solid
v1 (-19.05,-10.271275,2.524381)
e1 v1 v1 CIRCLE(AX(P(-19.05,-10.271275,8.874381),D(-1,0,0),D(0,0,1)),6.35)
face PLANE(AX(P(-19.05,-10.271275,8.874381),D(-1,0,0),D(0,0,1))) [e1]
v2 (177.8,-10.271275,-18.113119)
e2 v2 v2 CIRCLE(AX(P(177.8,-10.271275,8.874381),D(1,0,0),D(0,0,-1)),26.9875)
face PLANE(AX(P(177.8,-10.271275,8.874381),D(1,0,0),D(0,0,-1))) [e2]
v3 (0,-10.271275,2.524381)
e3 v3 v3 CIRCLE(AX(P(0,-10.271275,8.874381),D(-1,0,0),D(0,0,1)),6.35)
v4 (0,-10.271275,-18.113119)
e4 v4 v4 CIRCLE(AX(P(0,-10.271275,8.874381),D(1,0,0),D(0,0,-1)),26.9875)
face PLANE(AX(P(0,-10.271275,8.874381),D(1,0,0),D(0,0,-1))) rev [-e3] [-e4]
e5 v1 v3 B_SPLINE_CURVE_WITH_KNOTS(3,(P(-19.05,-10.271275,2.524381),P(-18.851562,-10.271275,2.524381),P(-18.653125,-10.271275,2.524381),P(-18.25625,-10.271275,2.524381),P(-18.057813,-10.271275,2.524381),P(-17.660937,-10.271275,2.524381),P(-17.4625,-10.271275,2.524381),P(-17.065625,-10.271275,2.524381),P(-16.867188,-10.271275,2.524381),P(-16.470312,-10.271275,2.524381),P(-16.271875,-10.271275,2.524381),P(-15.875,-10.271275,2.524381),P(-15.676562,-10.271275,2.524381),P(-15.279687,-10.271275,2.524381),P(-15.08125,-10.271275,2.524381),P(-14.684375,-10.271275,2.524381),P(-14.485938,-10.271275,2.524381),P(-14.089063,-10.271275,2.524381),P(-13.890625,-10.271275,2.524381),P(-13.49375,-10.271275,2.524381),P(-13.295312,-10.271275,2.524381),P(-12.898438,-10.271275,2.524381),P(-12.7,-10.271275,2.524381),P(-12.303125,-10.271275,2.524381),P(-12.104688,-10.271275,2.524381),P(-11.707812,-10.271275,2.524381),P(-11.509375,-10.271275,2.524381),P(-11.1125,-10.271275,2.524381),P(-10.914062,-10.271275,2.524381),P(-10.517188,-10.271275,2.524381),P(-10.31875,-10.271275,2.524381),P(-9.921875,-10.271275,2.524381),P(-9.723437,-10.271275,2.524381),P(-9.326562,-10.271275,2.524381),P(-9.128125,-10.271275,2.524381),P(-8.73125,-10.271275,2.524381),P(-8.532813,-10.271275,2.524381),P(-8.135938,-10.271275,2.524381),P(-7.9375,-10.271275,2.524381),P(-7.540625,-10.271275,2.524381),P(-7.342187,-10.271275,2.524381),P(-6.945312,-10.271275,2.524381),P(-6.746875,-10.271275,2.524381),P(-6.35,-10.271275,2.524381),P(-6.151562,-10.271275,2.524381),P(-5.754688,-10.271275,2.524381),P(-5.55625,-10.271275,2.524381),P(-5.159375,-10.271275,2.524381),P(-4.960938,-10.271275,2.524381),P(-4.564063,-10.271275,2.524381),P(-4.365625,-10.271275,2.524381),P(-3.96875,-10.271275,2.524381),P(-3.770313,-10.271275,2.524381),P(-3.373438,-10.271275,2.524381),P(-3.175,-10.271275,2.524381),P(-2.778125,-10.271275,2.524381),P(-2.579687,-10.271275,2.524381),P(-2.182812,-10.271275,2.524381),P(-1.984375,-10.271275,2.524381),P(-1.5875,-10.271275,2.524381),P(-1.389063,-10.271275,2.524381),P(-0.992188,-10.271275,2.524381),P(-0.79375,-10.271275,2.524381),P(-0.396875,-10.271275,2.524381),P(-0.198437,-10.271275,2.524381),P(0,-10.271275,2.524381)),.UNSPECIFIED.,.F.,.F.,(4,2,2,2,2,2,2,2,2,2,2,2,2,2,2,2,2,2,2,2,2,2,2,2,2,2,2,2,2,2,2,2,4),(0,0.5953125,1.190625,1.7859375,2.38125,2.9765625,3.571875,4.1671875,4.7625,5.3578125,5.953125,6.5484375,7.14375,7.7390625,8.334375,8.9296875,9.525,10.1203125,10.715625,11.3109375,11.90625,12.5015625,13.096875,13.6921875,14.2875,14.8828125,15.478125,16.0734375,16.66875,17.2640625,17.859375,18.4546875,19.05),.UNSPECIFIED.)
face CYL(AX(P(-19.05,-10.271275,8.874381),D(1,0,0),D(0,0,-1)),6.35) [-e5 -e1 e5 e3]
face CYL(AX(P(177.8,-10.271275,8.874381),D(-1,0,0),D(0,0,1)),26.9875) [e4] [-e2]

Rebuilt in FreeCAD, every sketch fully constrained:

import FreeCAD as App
import Part
import Sketcher

V = App.Vector
Q = App.Units.Quantity

doc = App.newDocument("Part")
params = doc.addObject("Spreadsheet::Sheet", "Params")
for row, (alias, value) in enumerate([
    ("sketch1_diameter", "2.125 in"),
    ("pad1_length", "7 in"),
    ("sketch2_diameter", "0.5 in"),
    ("pad2_length", "0.75 in"),
], start=1):
    params.set(f"A{row}", alias)
    params.set(f"B{row}", "=" + value)
    params.setAlias(f"B{row}", alias)

body = doc.addObject("PartDesign::Body", "Body")

sketch1 = doc.addObject("Sketcher::SketchObject", "Sketch")
body.addObject(sketch1)
sketch1.AttachmentSupport = (doc.YZ_Plane, [""])
sketch1.MapMode = "FlatFace"
sketch1.addGeometry(Part.Circle(V(-10.271275, 8.874381, 0), V(0, 0, 1), 26.9875), False)
sketch1.addConstraint([
    Sketcher.Constraint("Diameter", 0, Q("2.125 in")),
    Sketcher.Constraint("DistanceY", -1, 1, 0, 3, Q("8.874381 mm")),
    Sketcher.Constraint("DistanceX", 0, 3, -1, 1, Q("10.271275 mm")),
])
sketch1.setExpression("Constraints[0]", "Params.sketch1_diameter")
pad1 = doc.addObject("PartDesign::Pad", "Pad")
body.addObject(pad1)
pad1.Profile = sketch1
pad1.setExpression("Length", "Params.pad1_length")

sketch2 = doc.addObject("Sketcher::SketchObject", "Sketch001")
body.addObject(sketch2)
sketch2.AttachmentSupport = (doc.YZ_Plane, [""])
sketch2.MapMode = "FlatFace"
sketch2.addGeometry(Part.Circle(V(-10.271275, 8.874381, 0), V(0, 0, 1), 6.35), False)
sketch2.addConstraint([
    Sketcher.Constraint("Diameter", 0, Q("0.5 in")),
    Sketcher.Constraint("DistanceY", -1, 1, 0, 3, Q("8.874381 mm")),
    Sketcher.Constraint("DistanceX", 0, 3, -1, 1, Q("10.271275 mm")),
])
sketch2.setExpression("Constraints[0]", "Params.sketch2_diameter")
pad2 = doc.addObject("PartDesign::Pad", "Pad001")
body.addObject(pad2)
pad2.Profile = sketch2
pad2.setExpression("Length", "Params.pad2_length")
pad2.Reversed = True

doc.recompute()
